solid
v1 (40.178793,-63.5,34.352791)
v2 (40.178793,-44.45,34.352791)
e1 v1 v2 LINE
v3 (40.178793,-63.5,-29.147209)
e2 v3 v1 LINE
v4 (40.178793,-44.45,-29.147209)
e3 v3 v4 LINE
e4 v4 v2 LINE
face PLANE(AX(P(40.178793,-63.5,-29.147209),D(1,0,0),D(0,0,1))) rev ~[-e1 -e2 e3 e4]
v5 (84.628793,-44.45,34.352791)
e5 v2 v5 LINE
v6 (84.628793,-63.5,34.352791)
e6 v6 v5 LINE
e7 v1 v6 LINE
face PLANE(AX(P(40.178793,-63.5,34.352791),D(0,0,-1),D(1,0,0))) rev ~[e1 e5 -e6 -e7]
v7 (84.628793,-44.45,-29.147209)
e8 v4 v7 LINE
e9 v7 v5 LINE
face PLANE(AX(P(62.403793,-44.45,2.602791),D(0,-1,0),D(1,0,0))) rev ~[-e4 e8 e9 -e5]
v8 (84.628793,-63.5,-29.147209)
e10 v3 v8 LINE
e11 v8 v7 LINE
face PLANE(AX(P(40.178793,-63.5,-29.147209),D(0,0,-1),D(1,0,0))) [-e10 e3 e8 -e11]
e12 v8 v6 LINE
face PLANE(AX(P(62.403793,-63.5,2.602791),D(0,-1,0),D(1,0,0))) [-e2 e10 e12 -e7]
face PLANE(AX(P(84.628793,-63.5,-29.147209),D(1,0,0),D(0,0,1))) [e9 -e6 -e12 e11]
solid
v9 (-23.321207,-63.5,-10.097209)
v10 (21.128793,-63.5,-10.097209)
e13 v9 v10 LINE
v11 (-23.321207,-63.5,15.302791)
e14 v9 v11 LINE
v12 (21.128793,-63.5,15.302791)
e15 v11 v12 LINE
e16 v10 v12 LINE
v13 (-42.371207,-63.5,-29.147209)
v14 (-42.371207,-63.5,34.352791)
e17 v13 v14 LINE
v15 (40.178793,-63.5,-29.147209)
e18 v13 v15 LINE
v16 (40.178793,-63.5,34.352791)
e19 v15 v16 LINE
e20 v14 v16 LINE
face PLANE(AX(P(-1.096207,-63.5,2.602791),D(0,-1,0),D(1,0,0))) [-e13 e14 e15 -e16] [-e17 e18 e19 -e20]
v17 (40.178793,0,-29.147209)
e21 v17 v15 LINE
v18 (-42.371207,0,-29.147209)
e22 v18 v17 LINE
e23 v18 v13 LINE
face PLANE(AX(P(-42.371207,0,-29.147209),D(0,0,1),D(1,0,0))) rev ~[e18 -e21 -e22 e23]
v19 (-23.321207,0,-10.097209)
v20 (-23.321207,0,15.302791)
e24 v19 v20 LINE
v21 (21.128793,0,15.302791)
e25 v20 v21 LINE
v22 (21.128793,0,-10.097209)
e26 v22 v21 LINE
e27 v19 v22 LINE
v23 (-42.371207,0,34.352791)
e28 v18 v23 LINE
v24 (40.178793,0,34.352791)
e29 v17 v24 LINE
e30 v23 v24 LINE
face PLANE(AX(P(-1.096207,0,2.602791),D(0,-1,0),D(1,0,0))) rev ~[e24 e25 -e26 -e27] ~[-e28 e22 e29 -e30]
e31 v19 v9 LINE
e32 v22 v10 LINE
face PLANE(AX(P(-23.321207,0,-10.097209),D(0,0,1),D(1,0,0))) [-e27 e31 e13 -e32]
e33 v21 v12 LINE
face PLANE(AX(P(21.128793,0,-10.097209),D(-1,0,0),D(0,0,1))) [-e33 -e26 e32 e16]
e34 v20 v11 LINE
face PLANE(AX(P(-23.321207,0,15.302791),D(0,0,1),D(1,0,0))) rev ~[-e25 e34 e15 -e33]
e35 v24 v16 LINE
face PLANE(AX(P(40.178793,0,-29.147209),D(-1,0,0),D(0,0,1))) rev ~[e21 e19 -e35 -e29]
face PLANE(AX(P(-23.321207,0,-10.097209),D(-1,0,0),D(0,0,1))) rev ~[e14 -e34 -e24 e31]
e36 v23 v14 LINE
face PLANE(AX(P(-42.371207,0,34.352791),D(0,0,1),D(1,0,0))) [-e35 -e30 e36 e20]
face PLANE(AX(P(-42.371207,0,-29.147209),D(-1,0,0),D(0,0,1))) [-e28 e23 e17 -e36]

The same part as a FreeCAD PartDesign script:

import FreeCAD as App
import Part
import Sketcher
Q = App.Units.Quantity

doc = App.newDocument("Part")
body = doc.addObject("PartDesign::Body", "Body")

# Sketch on XZ plane
sketch1 = doc.addObject("Sketcher::SketchObject", "Sketch")
body.addObject(sketch1)
sketch1.AttachmentSupport = (doc.XZ_Plane, [""])
sketch1.MapMode = "FlatFace"
sketch1.addGeometry(Part.LineSegment(App.Vector(-42, 34, 0), App.Vector(-42, -29, 0)), False)
sketch1.addGeometry(Part.LineSegment(App.Vector(-42, -29, 0), App.Vector(40, -29, 0)), False)
sketch1.addGeometry(Part.LineSegment(App.Vector(40, -29, 0), App.Vector(40, 34, 0)), False)
sketch1.addGeometry(Part.LineSegment(App.Vector(40, 34, 0), App.Vector(-42, 34, 0)), False)
sketch1.addGeometry(Part.LineSegment(App.Vector(21, -10, 0), App.Vector(-23, -10, 0)), False)
sketch1.addGeometry(Part.LineSegment(App.Vector(-23, -10, 0), App.Vector(-23, 15, 0)), False)
sketch1.addGeometry(Part.LineSegment(App.Vector(-23, 15, 0), App.Vector(21, 15, 0)), False)
sketch1.addGeometry(Part.LineSegment(App.Vector(21, 15, 0), App.Vector(21, -10, 0)), False)
sketch1.addConstraint(Sketcher.Constraint("Coincident", 0, 2, 1, 1))
sketch1.addConstraint(Sketcher.Constraint("Coincident", 1, 2, 2, 1))
sketch1.addConstraint(Sketcher.Constraint("Coincident", 2, 2, 3, 1))
sketch1.addConstraint(Sketcher.Constraint("Coincident", 3, 2, 0, 1))
sketch1.addConstraint(Sketcher.Constraint("Coincident", 4, 2, 5, 1))
sketch1.addConstraint(Sketcher.Constraint("Coincident", 5, 2, 6, 1))
sketch1.addConstraint(Sketcher.Constraint("Coincident", 6, 2, 7, 1))
sketch1.addConstraint(Sketcher.Constraint("Coincident", 7, 2, 4, 1))
sketch1.addConstraint(Sketcher.Constraint("Vertical", 0))
sketch1.addConstraint(Sketcher.Constraint("Horizontal", 1))
sketch1.addConstraint(Sketcher.Constraint("Vertical", 2))
sketch1.addConstraint(Sketcher.Constraint("Horizontal", 3))
sketch1.addConstraint(Sketcher.Constraint("Horizontal", 4))
sketch1.addConstraint(Sketcher.Constraint("Vertical", 5))
sketch1.addConstraint(Sketcher.Constraint("Horizontal", 6))
sketch1.addConstraint(Sketcher.Constraint("Vertical", 7))
sketch1.addConstraint(Sketcher.Constraint("DistanceY", 5, 1, 5, 2, Q("1 in")))
sketch1.addConstraint(Sketcher.Constraint("DistanceY", 0, 2, 0, 1, Q("2.5 in")))
sketch1.addConstraint(Sketcher.Constraint("DistanceX", 1, 1, 1, 2, Q("3.25 in")))
sketch1.addConstraint(Sketcher.Constraint("DistanceX", 4, 2, 4, 1, Q("1.75 in")))
sketch1.addConstraint(Sketcher.Constraint("DistanceX", 4, 2, 1, 2, Q("2.5 in")))
sketch1.addConstraint(Sketcher.Constraint("DistanceY", 0, 2, 4, 2, Q("0.75 in")))
sketch1.addConstraint(Sketcher.Constraint("DistanceY", 0, 2, -1, 1, 29.147209))
sketch1.addConstraint(Sketcher.Constraint("DistanceX", 0, 2, -1, 1, 42.371207))
pad1 = doc.addObject("PartDesign::Pad", "Pad")
body.addObject(pad1)
pad1.Profile = sketch1
pad1.Length = Q("2.5 in")
body2 = doc.addObject("PartDesign::Body", "Body001")

# Sketch on XZ plane
sketch2 = doc.addObject("Sketcher::SketchObject", "Sketch001")
body2.addObject(sketch2)
sketch2.AttachmentSupport = (doc.getObject("XZ_Plane001"), [""])
sketch2.MapMode = "FlatFace"
sketch2.AttachmentOffset = App.Placement(App.Vector(0, 0, 2.5 * 25.4), App.Rotation())
sketch2.addGeometry(Part.LineSegment(App.Vector(40, 34, 0), App.Vector(40, -29, 0)), False)
sketch2.addGeometry(Part.LineSegment(App.Vector(40, -29, 0), App.Vector(85, -29, 0)), False)
sketch2.addGeometry(Part.LineSegment(App.Vector(85, -29, 0), App.Vector(85, 34, 0)), False)
sketch2.addGeometry(Part.LineSegment(App.Vector(85, 34, 0), App.Vector(40, 34, 0)), False)
sketch2.addConstraint(Sketcher.Constraint("Coincident", 0, 2, 1, 1))
sketch2.addConstraint(Sketcher.Constraint("Coincident", 1, 2, 2, 1))
sketch2.addConstraint(Sketcher.Constraint("Coincident", 2, 2, 3, 1))
sketch2.addConstraint(Sketcher.Constraint("Coincident", 3, 2, 0, 1))
sketch2.addConstraint(Sketcher.Constraint("Vertical", 0))
sketch2.addConstraint(Sketcher.Constraint("Horizontal", 1))
sketch2.addConstraint(Sketcher.Constraint("Vertical", 2))
sketch2.addConstraint(Sketcher.Constraint("Horizontal", 3))
sketch2.addConstraint(Sketcher.Constraint("DistanceY", 0, 2, 0, 1, Q("2.5 in")))
sketch2.addConstraint(Sketcher.Constraint("DistanceX", 1, 1, 1, 2, Q("1.75 in")))
sketch2.addConstraint(Sketcher.Constraint("DistanceY", 0, 2, -1, 1, 29.147209))
sketch2.addConstraint(Sketcher.Constraint("DistanceX", -1, 1, 0, 2, 40.178793))
pad2 = doc.addObject("PartDesign::Pad", "Pad001")
body2.addObject(pad2)
pad2.Profile = sketch2
pad2.Length = Q("0.75 in")
pad2.Reversed = True

doc.recompute()
